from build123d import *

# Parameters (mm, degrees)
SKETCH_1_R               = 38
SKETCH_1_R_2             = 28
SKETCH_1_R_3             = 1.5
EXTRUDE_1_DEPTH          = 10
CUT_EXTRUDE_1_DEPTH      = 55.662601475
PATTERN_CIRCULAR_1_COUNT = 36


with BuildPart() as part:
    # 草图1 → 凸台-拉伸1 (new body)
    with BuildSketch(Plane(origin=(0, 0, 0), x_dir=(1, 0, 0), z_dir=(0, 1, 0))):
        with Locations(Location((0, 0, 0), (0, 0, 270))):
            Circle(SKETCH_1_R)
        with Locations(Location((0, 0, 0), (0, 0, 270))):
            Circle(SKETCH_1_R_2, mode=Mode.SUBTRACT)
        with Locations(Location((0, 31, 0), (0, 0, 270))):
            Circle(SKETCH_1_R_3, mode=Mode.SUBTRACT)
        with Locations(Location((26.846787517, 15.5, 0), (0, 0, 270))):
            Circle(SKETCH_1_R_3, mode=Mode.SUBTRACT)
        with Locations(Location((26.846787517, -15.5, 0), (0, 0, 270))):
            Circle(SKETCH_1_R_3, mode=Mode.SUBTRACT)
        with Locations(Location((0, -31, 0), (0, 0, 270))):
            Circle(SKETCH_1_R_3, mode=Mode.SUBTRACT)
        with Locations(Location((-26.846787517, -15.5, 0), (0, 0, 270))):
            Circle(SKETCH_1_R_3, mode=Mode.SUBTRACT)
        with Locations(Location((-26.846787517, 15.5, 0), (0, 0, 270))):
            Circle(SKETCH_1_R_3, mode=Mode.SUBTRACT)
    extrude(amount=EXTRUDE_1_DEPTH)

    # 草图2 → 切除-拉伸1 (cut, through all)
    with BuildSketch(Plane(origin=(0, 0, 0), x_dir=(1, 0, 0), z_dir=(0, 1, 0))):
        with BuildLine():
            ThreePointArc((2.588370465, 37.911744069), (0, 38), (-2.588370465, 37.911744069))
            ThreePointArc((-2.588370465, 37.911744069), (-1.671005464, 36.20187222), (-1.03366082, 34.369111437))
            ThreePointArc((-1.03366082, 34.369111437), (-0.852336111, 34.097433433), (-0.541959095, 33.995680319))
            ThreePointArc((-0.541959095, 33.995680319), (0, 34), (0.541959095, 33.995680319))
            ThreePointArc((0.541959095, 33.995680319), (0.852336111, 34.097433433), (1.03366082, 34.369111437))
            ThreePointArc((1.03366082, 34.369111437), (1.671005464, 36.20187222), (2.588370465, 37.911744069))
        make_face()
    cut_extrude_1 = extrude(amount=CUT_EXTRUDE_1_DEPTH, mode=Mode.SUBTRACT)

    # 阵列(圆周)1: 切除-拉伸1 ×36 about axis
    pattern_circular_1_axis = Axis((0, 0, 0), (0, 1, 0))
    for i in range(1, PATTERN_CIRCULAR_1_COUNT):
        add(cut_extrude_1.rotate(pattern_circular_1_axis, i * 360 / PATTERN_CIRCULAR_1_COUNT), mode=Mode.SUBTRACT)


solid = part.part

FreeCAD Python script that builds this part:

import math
import FreeCAD as App
import Part
import Sketcher
from FreeCAD import Vector

doc = App.newDocument("Part")
body = doc.addObject("PartDesign::Body", "Body")

sketch1 = body.newObject("Sketcher::SketchObject", "Sketch")
sketch1.AttachmentSupport = (doc.getObject("XZ_Plane"), [""])
sketch1.MapMode = "FlatFace"
sketch1.addGeometry(Part.Circle(Vector(0, 0, 0), Vector(0, 0, 1), 38), False)
sketch1.addGeometry(Part.Circle(Vector(-26.8, -15.5, 0), Vector(0, 0, 1), 1.5), False)
sketch1.addGeometry(Part.Circle(Vector(0, -31, 0), Vector(0, 0, 1), 1.5), False)
sketch1.addGeometry(Part.Circle(Vector(-26.8, 15.5, 0), Vector(0, 0, 1), 1.5), False)
sketch1.addGeometry(Part.Circle(Vector(26.8, -15.5, 0), Vector(0, 0, 1), 1.5), False)
sketch1.addGeometry(Part.Circle(Vector(0, 0, 0), Vector(0, 0, 1), 28), False)
sketch1.addGeometry(Part.Circle(Vector(0, 31, 0), Vector(0, 0, 1), 1.5), False)
sketch1.addGeometry(Part.Circle(Vector(26.8, 15.5, 0), Vector(0, 0, 1), 1.5), False)
sketch1.addConstraint(Sketcher.Constraint("Coincident", 0, 3, -1, 1))
sketch1.addConstraint(Sketcher.Constraint("Coincident", 5, 3, -1, 1))
sketch1.addConstraint(Sketcher.Constraint("Equal", 1, 2))
sketch1.addConstraint(Sketcher.Constraint("Equal", 2, 3))
sketch1.addConstraint(Sketcher.Constraint("Equal", 3, 4))
sketch1.addConstraint(Sketcher.Constraint("Equal", 4, 6))
sketch1.addConstraint(Sketcher.Constraint("Equal", 6, 7))
sketch1.addConstraint(Sketcher.Constraint("Symmetric", 3, 3, 4, 3, -1, 1))
sketch1.addConstraint(Sketcher.Constraint("Symmetric", 2, 3, 6, 3, -1, 1))
sketch1.addConstraint(Sketcher.Constraint("Symmetric", 1, 3, 7, 3, -1, 1))
sketch1.addConstraint(Sketcher.Constraint("Symmetric", 1, 3, 4, 3, -2))
sketch1.addConstraint(Sketcher.Constraint("PointOnObject", 2, 3, -2))
sketch1.addConstraint(Sketcher.Constraint("Diameter", 0, 76.0))
sketch1.addConstraint(Sketcher.Constraint("Diameter", 1, 3.0))
sketch1.addConstraint(Sketcher.Constraint("Diameter", 5, 56.0))
sketch1.addConstraint(Sketcher.Constraint("DistanceY", 2, 3, -1, 1, 31.0))
sketch1.addConstraint(Sketcher.Constraint("DistanceY", 1, 3, 3, 3, 31.0))
sketch1.addConstraint(Sketcher.Constraint("DistanceX", 1, 3, -1, 1, 26.846788))
pad1 = body.newObject("PartDesign::Pad", "Pad")
pad1.Profile = sketch1
pad1.Length = 10
pad1.Reversed = True

sketch2 = body.newObject("Sketcher::SketchObject", "Sketch001")
sketch2.AttachmentSupport = (doc.getObject("XZ_Plane"), [""])
sketch2.MapMode = "FlatFace"
sketch2.addGeometry(Part.ArcOfCircle(Part.Circle(Vector(0, 0, 0), Vector(0, 0, 1), 38), math.radians(-93.91), math.radians(-86.09)), False)
sketch2.addGeometry(Part.ArcOfCircle(Part.Circle(Vector(-12.95, -31.25, 0), Vector(0, 0, 1), 12.31), math.radians(-32.73), math.radians(-14.66)), False)
sketch2.addGeometry(Part.ArcOfCircle(Part.Circle(Vector(-0.55, -34.5, 0), Vector(0, 0, 1), 0.5), math.radians(89), math.radians(165)), False)
sketch2.addGeometry(Part.ArcOfCircle(Part.Circle(Vector(0, 0, 0), Vector(0, 0, 1), 34), math.radians(-90.91), math.radians(-89.09)), False)
sketch2.addGeometry(Part.ArcOfCircle(Part.Circle(Vector(0.55, -34.5, 0), Vector(0, 0, 1), 0.5), math.radians(15), math.radians(91)), False)
sketch2.addGeometry(Part.ArcOfCircle(Part.Circle(Vector(12.95, -31.25, 0), Vector(0, 0, 1), 12.31), math.radians(-165.34), math.radians(-147.27)), False)
sketch2.addConstraint(Sketcher.Constraint("Coincident", 0, 1, 1, 1))
sketch2.addConstraint(Sketcher.Constraint("Tangent", 1, 2, 2, 2))
sketch2.addConstraint(Sketcher.Constraint("Tangent", 2, 1, 3, 1))
sketch2.addConstraint(Sketcher.Constraint("Tangent", 3, 2, 4, 2))
sketch2.addConstraint(Sketcher.Constraint("Tangent", 4, 1, 5, 1))
sketch2.addConstraint(Sketcher.Constraint("Coincident", 5, 2, 0, 2))
sketch2.addConstraint(Sketcher.Constraint("Coincident", 0, 3, -1, 1))
sketch2.addConstraint(Sketcher.Constraint("Coincident", 3, 3, -1, 1))
sketch2.addConstraint(Sketcher.Constraint("Equal", 2, 4))
sketch2.addConstraint(Sketcher.Constraint("Equal", 1, 5))
sketch2.addConstraint(Sketcher.Constraint("Symmetric", 1, 3, 5, 3, -2))
sketch2.addConstraint(Sketcher.Constraint("Radius", 0, 38.0))
sketch2.addConstraint(Sketcher.Constraint("Radius", 3, 34.000001))
sketch2.addConstraint(Sketcher.Constraint("Radius", 2, 0.5))
sketch2.addConstraint(Sketcher.Constraint("Radius", 1, 12.312725))
sketch2.addConstraint(Sketcher.Constraint("DistanceX", 1, 3, 4, 3, 13.495702))
sketch2.addConstraint(Sketcher.Constraint("DistanceX", 0, 1, 4, 3, 3.1383))
pocket1 = body.newObject("PartDesign::Pocket", "Pocket")
pocket1.Profile = sketch2
pocket1.Type = "ThroughAll"
doc.recompute()

polarpattern = body.newObject("PartDesign::PolarPattern", "PolarPattern")
polarpattern.Originals = [pocket1]
polarpattern.Axis = (doc.getObject("Y_Axis"), [""])
polarpattern.Angle = 360
polarpattern.Occurrences = 36
body.Tip = polarpattern

doc.recompute()
